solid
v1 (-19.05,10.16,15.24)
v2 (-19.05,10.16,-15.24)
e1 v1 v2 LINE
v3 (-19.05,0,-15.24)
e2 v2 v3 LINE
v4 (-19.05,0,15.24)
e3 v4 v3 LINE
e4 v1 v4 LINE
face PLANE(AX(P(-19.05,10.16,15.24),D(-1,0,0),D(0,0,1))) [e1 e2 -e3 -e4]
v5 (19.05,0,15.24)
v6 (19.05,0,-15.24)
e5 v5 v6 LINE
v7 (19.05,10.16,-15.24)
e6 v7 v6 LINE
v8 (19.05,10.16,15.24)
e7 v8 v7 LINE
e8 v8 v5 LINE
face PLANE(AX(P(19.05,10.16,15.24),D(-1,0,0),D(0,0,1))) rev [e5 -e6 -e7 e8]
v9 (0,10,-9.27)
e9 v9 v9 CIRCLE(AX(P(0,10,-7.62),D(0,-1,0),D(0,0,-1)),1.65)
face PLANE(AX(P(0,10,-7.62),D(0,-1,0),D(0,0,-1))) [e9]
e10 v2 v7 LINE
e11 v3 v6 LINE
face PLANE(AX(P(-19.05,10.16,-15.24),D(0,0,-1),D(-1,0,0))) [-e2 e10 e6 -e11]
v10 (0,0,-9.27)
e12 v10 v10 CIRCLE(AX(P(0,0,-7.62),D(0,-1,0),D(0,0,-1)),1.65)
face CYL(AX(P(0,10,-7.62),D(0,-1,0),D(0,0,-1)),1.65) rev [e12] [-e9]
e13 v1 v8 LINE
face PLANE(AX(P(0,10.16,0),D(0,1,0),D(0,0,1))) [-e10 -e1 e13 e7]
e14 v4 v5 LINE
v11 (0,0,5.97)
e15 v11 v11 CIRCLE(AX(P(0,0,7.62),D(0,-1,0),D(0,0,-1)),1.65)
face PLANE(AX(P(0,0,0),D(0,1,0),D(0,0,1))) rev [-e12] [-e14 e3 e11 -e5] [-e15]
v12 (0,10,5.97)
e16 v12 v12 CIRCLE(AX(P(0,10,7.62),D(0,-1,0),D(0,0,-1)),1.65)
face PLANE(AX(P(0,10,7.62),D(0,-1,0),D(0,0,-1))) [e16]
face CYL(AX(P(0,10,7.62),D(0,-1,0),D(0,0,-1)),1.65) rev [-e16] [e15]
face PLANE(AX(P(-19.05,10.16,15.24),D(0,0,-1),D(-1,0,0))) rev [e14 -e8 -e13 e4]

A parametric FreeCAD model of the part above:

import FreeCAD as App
import Part
import Sketcher

V = App.Vector
Q = App.Units.Quantity

doc = App.newDocument("Part")
body = doc.addObject("PartDesign::Body", "Body")

# Sketch on XZ plane
sketch1 = doc.addObject("Sketcher::SketchObject", "Sketch")
body.addObject(sketch1)
sketch1.AttachmentSupport = (doc.XZ_Plane, [""])
sketch1.MapMode = "FlatFace"
sketch1.addGeometry(Part.LineSegment(V(-19.05, -15.24, 0), V(-19.05, 15.24, 0)), False)
sketch1.addGeometry(Part.LineSegment(V(-19.05, 15.24, 0), V(19.05, 15.24, 0)), False)
sketch1.addGeometry(Part.LineSegment(V(19.05, 15.24, 0), V(19.05, -15.24, 0)), False)
sketch1.addGeometry(Part.LineSegment(V(19.05, -15.24, 0), V(-19.05, -15.24, 0)), False)
sketch1.addConstraint(Sketcher.Constraint("Coincident", 0, 2, 1, 1))
sketch1.addConstraint(Sketcher.Constraint("Coincident", 1, 2, 2, 1))
sketch1.addConstraint(Sketcher.Constraint("Coincident", 2, 2, 3, 1))
sketch1.addConstraint(Sketcher.Constraint("Coincident", 3, 2, 0, 1))
sketch1.addConstraint(Sketcher.Constraint("Vertical", 0))
sketch1.addConstraint(Sketcher.Constraint("Horizontal", 1))
sketch1.addConstraint(Sketcher.Constraint("Vertical", 2))
sketch1.addConstraint(Sketcher.Constraint("Horizontal", 3))
sketch1.addConstraint(Sketcher.Constraint("Symmetric", 0, 2, 2, 2, -1, 1))
sketch1.addConstraint(Sketcher.Constraint("DistanceX", 1, 1, 1, 2, Q("1.5 in")))
sketch1.addConstraint(Sketcher.Constraint("DistanceY", 0, 1, 0, 2, Q("1.2 in")))
pad1 = doc.addObject("PartDesign::Pad", "Pad")
body.addObject(pad1)
pad1.Profile = sketch1
pad1.Length = Q("0.4 in")
pad1.Reversed = True

# Sketch on XZ plane
sketch2 = doc.addObject("Sketcher::SketchObject", "Sketch001")
body.addObject(sketch2)
sketch2.AttachmentSupport = (doc.XZ_Plane, [""])
sketch2.MapMode = "FlatFace"
sketch2.addGeometry(Part.Circle(V(0, 7.62, 0), V(0, 0, 1), 1.65), False)
sketch2.addGeometry(Part.Circle(V(0, -7.62, 0), V(0, 0, 1), 1.65), False)
sketch2.addConstraint(Sketcher.Constraint("Equal", 0, 1))
sketch2.addConstraint(Sketcher.Constraint("Symmetric", 0, 3, 1, 3, -1, 1))
sketch2.addConstraint(Sketcher.Constraint("PointOnObject", 0, 3, -2))
sketch2.addConstraint(Sketcher.Constraint("DistanceY", -1, 1, 0, 3, Q("0.3 in")))
sketch2.addConstraint(Sketcher.Constraint("Diameter", 0, 3.3))
pocket1 = doc.addObject("PartDesign::Pocket", "Pocket")
body.addObject(pocket1)
pocket1.Profile = sketch2
pocket1.Length = 10

doc.recompute()
